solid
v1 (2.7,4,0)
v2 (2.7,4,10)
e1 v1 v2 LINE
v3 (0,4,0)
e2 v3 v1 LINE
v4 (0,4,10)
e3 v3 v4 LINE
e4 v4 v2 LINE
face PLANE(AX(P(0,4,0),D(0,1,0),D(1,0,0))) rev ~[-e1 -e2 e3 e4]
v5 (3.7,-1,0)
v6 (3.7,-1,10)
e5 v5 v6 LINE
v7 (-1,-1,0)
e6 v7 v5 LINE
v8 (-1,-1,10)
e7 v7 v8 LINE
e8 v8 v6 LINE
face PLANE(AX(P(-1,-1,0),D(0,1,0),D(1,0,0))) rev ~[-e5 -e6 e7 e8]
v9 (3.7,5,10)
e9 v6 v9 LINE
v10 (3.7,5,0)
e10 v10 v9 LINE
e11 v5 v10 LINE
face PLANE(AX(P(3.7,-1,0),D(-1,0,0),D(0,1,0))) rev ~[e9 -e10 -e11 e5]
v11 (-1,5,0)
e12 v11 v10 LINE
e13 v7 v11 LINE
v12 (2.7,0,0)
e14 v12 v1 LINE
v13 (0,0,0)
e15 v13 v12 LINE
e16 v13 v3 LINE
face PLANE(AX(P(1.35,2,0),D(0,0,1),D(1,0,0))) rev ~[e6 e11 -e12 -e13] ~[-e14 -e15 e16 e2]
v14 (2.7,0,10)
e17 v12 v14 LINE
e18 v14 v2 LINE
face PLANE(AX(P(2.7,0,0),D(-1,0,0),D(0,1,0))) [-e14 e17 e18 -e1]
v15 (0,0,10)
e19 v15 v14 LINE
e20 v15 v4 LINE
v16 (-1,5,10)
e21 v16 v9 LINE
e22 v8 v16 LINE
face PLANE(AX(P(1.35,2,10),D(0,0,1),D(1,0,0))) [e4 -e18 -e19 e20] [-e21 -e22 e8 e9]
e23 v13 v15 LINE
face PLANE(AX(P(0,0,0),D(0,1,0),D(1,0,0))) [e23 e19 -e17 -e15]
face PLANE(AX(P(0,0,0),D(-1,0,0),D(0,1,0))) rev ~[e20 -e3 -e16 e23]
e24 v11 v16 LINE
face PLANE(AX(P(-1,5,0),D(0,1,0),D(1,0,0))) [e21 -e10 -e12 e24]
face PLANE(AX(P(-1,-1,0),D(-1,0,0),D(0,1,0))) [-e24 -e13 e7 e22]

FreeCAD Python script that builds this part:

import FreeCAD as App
import Part
import Sketcher
from FreeCAD import Vector
Q = App.Units.Quantity

doc = App.newDocument("Part")
body = doc.addObject("PartDesign::Body", "Body")

sketch1 = body.newObject("Sketcher::SketchObject", "Sketch")
sketch1.AttachmentSupport = (doc.getObject("XY_Plane"), [""])
sketch1.MapMode = "FlatFace"
sketch1.addGeometry([
    Part.LineSegment(Vector(-1, 5, 0), Vector(-1, -1, 0)),
    Part.LineSegment(Vector(-1, -1, 0), Vector(3.7, -1, 0)),
    Part.LineSegment(Vector(3.7, -1, 0), Vector(3.7, 5, 0)),
    Part.LineSegment(Vector(3.7, 5, 0), Vector(-1, 5, 0)),
    Part.LineSegment(Vector(2.7, 0, 0), Vector(0, 0, 0)),
    Part.LineSegment(Vector(0, 0, 0), Vector(0, 4, 0)),
    Part.LineSegment(Vector(0, 4, 0), Vector(2.7, 4, 0)),
    Part.LineSegment(Vector(2.7, 4, 0), Vector(2.7, 0, 0)),
], False)
sketch1.addConstraint([
    Sketcher.Constraint("Coincident", 0, 2, 1, 1),
    Sketcher.Constraint("Coincident", 1, 2, 2, 1),
    Sketcher.Constraint("Coincident", 2, 2, 3, 1),
    Sketcher.Constraint("Coincident", 3, 2, 0, 1),
    Sketcher.Constraint("Coincident", 4, 2, 5, 1),
    Sketcher.Constraint("Coincident", 5, 2, 6, 1),
    Sketcher.Constraint("Coincident", 6, 2, 7, 1),
    Sketcher.Constraint("Coincident", 7, 2, 4, 1),
    Sketcher.Constraint("Vertical", 0),
    Sketcher.Constraint("Horizontal", 1),
    Sketcher.Constraint("Vertical", 2),
    Sketcher.Constraint("Horizontal", 3),
    Sketcher.Constraint("Horizontal", 4),
    Sketcher.Constraint("Vertical", 5),
    Sketcher.Constraint("Horizontal", 6),
    Sketcher.Constraint("Vertical", 7),
    Sketcher.Constraint("Coincident", 4, 2, -1, 1),
    Sketcher.Constraint("DistanceY", 0, 2, 0, 1, Q("6 mm")),
    Sketcher.Constraint("DistanceY", 5, 1, 5, 2, Q("4 mm")),
    Sketcher.Constraint("DistanceX", 1, 1, 1, 2, Q("4.7 mm")),
    Sketcher.Constraint("DistanceX", 4, 2, 4, 1, Q("2.7 mm")),
    Sketcher.Constraint("DistanceX", 0, 2, -1, 1, Q("1 mm")),
    Sketcher.Constraint("DistanceY", 0, 2, -1, 1, Q("1 mm")),
])
pad1 = body.newObject("PartDesign::Pad", "Pad")
pad1.Profile = sketch1
pad1.Length = 10

doc.recompute()
